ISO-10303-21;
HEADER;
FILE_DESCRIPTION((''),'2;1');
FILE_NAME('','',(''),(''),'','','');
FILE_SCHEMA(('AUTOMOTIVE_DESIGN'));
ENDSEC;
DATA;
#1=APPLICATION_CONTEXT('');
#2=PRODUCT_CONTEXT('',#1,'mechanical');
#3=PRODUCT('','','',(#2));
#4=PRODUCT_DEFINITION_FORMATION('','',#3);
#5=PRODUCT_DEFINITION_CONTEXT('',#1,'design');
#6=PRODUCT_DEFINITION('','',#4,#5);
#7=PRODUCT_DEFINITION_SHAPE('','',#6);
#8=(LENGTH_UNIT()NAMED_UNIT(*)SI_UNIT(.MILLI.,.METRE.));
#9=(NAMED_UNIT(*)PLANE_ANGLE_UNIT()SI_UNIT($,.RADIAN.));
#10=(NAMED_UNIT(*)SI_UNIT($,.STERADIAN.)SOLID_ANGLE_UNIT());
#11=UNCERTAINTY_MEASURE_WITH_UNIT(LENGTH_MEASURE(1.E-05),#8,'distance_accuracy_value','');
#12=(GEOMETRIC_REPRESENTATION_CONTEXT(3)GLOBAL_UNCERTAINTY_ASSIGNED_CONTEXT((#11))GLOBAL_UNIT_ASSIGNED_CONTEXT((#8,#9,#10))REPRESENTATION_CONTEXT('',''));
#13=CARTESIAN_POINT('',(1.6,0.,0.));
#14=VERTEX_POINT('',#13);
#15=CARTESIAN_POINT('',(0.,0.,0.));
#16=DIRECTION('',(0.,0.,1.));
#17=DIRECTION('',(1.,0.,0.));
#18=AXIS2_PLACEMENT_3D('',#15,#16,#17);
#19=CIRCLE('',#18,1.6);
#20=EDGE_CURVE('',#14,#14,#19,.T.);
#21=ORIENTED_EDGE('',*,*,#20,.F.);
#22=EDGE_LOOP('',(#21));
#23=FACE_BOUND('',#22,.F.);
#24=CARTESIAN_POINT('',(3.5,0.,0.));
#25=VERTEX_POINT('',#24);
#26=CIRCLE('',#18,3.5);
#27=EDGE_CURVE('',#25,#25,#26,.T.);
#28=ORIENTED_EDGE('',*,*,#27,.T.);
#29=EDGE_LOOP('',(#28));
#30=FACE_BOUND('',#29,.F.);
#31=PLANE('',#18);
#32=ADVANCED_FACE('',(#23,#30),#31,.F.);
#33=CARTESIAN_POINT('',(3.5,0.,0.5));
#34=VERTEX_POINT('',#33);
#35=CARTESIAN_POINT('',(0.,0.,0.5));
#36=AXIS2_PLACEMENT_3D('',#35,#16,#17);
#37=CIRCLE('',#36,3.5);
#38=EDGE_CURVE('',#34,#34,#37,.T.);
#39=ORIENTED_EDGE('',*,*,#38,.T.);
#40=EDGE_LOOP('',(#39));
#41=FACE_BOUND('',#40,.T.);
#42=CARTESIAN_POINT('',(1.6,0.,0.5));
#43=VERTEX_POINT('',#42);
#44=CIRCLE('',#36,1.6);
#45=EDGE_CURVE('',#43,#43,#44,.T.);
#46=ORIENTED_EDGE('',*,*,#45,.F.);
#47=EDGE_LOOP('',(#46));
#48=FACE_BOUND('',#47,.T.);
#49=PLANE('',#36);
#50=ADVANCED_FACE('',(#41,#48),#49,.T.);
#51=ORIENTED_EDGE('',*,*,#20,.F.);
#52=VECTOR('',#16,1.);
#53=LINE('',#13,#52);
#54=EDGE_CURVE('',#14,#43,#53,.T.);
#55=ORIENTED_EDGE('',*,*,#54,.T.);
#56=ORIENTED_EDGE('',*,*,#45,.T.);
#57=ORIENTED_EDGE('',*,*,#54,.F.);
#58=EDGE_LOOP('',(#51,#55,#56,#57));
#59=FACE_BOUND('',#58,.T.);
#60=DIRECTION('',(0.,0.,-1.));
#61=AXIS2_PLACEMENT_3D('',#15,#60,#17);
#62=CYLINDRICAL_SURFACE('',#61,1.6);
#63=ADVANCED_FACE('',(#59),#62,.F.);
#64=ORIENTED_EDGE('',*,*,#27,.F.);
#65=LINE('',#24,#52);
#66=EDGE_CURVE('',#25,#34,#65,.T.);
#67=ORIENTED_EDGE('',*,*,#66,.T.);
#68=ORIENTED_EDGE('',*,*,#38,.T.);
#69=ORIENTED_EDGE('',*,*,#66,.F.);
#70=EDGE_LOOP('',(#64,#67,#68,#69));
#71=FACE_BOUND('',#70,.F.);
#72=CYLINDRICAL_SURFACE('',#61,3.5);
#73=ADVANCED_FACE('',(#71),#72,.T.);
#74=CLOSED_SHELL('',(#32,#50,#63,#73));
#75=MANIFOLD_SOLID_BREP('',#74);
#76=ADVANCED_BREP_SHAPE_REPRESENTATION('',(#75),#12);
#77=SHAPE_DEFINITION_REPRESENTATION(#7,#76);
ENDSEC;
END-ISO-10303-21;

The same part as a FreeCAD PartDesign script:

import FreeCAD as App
import Part
import Sketcher

V = App.Vector
Q = App.Units.Quantity

doc = App.newDocument("Part")
body = doc.addObject("PartDesign::Body", "Body")

sketch1 = body.newObject("Sketcher::SketchObject", "Sketch")
sketch1.AttachmentSupport = (doc.getObject("XY_Plane"), [""])
sketch1.MapMode = "FlatFace"
sketch1.addGeometry(Part.Circle(V(0, 0, 0), V(0, 0, 1), 3.5), False)
sketch1.addGeometry(Part.Circle(V(0, 0, 0), V(0, 0, 1), 1.6), False)
sketch1.addConstraint(Sketcher.Constraint("Coincident", 0, 3, -1, 1))
sketch1.addConstraint(Sketcher.Constraint("Coincident", 1, 3, -1, 1))
sketch1.addConstraint(Sketcher.Constraint("Diameter", 0, Q("7 mm")))
sketch1.addConstraint(Sketcher.Constraint("Diameter", 1, Q("3.2 mm")))
pad1 = body.newObject("PartDesign::Pad", "Pad")
pad1.Profile = sketch1
pad1.Length = 0.5

doc.recompute()
